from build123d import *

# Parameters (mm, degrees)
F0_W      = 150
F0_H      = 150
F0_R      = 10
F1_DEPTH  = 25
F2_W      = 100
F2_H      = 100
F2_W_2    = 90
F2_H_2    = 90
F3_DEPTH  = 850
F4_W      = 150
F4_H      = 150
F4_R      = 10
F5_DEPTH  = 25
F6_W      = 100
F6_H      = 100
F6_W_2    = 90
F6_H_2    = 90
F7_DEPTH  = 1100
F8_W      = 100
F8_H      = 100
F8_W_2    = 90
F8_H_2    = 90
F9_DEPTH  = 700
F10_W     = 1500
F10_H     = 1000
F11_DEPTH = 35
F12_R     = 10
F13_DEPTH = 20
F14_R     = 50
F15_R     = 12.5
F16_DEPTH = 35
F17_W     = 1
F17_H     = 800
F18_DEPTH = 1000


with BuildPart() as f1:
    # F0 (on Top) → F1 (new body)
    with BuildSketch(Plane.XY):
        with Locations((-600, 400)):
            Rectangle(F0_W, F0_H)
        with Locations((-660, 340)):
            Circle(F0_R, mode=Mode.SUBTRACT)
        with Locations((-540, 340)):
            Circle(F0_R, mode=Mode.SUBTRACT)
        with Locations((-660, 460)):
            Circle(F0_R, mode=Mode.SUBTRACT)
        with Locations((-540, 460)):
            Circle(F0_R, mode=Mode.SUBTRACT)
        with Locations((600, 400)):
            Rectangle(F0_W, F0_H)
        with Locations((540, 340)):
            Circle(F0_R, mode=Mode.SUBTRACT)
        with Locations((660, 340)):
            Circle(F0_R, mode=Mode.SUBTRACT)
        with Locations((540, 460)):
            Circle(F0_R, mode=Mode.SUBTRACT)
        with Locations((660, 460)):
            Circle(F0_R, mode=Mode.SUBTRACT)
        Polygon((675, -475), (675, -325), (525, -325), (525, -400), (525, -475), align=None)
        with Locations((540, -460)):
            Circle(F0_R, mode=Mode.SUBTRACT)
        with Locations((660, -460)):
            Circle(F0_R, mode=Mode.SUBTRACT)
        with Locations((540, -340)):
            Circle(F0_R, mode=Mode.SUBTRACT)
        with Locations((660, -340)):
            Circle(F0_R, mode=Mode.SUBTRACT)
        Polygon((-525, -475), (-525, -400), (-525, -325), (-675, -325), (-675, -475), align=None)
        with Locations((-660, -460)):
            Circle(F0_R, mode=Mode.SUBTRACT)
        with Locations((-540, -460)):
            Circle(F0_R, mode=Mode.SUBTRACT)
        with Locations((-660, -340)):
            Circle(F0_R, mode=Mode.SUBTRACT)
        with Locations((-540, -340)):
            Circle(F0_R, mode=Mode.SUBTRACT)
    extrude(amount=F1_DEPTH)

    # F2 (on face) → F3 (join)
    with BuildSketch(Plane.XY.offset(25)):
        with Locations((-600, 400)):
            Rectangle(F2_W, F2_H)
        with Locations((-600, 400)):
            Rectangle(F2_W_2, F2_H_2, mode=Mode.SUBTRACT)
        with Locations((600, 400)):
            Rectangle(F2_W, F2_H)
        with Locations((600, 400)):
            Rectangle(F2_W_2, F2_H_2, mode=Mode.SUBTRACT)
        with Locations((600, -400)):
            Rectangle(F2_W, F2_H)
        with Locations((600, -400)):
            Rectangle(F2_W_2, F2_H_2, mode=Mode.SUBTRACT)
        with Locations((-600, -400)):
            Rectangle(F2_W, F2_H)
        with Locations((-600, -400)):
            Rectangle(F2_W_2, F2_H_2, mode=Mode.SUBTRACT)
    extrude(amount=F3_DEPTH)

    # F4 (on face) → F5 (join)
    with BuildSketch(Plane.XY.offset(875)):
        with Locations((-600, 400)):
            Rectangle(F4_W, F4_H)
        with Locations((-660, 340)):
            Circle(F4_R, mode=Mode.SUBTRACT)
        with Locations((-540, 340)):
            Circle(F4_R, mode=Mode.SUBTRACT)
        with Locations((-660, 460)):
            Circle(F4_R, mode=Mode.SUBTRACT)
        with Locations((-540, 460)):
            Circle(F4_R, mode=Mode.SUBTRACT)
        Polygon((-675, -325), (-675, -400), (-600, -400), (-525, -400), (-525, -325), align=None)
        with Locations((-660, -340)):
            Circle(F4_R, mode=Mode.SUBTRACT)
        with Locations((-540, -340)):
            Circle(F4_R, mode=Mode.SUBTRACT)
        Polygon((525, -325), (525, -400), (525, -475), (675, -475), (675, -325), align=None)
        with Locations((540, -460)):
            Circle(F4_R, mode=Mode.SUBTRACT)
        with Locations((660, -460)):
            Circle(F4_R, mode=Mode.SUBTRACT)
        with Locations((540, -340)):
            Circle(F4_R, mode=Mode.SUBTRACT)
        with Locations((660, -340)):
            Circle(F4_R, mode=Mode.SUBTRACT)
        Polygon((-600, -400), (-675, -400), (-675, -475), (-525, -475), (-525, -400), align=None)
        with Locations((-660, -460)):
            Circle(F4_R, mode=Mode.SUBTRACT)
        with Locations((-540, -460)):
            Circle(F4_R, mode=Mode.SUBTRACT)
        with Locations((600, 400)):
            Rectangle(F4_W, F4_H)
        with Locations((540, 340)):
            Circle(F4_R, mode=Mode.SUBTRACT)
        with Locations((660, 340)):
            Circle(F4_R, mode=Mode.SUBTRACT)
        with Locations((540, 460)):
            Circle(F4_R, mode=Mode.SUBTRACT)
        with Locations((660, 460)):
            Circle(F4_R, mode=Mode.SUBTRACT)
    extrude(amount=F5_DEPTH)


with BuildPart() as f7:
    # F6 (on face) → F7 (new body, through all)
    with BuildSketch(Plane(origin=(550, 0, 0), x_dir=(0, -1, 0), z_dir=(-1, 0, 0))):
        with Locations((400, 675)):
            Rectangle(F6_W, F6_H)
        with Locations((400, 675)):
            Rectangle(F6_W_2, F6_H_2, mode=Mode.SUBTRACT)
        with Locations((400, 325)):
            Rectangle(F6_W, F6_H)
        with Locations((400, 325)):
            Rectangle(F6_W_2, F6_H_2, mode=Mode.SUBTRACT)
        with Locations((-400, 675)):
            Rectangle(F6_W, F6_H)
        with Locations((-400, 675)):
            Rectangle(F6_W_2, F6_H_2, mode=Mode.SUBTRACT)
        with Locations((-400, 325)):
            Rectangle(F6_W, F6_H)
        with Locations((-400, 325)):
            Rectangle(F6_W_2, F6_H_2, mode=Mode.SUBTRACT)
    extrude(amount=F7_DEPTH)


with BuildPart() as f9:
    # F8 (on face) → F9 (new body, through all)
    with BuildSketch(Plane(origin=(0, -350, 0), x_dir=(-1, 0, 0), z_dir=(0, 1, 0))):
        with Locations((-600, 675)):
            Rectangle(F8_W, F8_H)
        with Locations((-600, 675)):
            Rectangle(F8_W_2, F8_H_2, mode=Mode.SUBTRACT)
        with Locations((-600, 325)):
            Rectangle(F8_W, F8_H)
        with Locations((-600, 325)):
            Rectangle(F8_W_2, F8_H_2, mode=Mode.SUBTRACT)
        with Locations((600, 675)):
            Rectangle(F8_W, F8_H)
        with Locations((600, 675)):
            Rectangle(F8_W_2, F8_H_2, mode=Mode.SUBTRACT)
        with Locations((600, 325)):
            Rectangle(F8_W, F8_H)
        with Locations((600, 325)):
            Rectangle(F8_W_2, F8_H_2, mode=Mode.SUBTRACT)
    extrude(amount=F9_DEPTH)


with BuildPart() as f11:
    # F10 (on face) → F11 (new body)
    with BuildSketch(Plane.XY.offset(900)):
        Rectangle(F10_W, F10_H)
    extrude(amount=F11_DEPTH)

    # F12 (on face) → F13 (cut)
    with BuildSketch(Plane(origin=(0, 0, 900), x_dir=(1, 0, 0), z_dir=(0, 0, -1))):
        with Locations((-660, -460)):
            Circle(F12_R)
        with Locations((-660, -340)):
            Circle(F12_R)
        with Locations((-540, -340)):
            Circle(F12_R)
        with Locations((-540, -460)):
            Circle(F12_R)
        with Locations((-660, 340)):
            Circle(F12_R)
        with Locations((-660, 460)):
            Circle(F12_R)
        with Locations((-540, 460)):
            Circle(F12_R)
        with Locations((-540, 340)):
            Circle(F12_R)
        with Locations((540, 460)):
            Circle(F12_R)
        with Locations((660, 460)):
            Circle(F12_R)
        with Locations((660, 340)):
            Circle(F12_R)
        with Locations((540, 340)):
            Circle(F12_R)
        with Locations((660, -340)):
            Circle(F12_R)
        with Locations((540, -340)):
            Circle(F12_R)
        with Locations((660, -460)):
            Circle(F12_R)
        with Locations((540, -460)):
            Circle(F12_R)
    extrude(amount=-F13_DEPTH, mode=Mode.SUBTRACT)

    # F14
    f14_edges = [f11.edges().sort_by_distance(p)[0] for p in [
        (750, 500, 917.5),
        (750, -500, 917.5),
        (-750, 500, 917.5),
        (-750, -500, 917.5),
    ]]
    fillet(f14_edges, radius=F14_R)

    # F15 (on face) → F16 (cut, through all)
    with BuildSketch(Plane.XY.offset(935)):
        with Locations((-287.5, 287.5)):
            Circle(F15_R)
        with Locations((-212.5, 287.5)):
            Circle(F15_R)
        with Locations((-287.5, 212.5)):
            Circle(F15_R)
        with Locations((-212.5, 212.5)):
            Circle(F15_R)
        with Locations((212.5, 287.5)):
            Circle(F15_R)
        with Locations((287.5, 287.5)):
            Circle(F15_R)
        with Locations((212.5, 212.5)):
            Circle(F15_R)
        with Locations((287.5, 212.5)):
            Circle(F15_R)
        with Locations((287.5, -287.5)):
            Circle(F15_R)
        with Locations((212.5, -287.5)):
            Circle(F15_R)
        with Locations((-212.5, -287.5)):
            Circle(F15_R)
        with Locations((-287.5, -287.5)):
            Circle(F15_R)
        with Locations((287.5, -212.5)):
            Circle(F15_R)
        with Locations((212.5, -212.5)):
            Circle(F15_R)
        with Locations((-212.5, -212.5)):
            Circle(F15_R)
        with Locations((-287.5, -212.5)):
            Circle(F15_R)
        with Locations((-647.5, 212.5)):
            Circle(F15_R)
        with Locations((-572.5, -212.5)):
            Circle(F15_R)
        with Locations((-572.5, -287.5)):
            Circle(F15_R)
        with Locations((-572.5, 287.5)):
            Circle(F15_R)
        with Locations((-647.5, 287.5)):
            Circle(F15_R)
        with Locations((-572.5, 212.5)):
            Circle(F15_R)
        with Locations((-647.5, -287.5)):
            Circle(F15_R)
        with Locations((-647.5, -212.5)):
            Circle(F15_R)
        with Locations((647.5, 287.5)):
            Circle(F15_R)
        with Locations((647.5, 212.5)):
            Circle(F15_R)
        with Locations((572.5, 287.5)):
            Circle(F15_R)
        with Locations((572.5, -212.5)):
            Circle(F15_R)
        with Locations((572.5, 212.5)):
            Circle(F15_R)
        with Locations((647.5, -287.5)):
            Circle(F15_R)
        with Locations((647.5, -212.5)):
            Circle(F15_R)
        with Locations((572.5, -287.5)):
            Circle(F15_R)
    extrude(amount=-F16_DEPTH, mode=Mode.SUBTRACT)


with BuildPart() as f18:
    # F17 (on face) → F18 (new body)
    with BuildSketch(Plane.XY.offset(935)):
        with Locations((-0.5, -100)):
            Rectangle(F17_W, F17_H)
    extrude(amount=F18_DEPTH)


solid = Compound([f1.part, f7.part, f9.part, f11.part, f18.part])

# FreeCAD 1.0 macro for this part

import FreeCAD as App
import Part
import Sketcher
Q = App.Units.Quantity


def edges_at(feature, points):
    """Names of the edges that pass closest to the given points."""
    edges = feature.Shape.Edges
    near = lambda p: min(range(len(edges)), key=lambda i: edges[i].distToShape(Part.Vertex(*p))[0])
    return sorted({f"Edge{near(p) + 1}" for p in points})


def add_polygon(sketch, points):
    """Adds a closed chain of lines whose ends are joined by coincident constraints."""
    first, n = sketch.GeometryCount, len(points)
    for a, b in zip(points, points[1:] + points[:1]):
        sketch.addGeometry(Part.LineSegment(App.Vector(*a, 0), App.Vector(*b, 0)), False)
    for i in range(n):
        sketch.addConstraint(Sketcher.Constraint("Coincident", first + i, 2, first + (i + 1) % n, 1))

doc = App.newDocument("Part")
body = doc.addObject("PartDesign::Body", "Body")
body.AllowCompound = True

# Sketch on XY plane
sketch1 = body.newObject("Sketcher::SketchObject", "Sketch")
sketch1.AttachmentSupport = (doc.getObject("XY_Plane"), [""])
sketch1.MapMode = "FlatFace"
add_polygon(sketch1, [(-675, 475), (-675, 325), (-525, 325), (-525, 475)])  # lines 0-3
sketch1.addGeometry(Part.Circle(App.Vector(-660, 340, 0), App.Vector(0, 0, 1), 10), False)  # 4
sketch1.addGeometry(Part.Circle(App.Vector(-540, 340, 0), App.Vector(0, 0, 1), 10), False)  # 5
sketch1.addGeometry(Part.Circle(App.Vector(-660, 460, 0), App.Vector(0, 0, 1), 10), False)  # 6
sketch1.addGeometry(Part.Circle(App.Vector(-540, 460, 0), App.Vector(0, 0, 1), 10), False)  # 7
add_polygon(sketch1, [(525, 475), (525, 325), (675, 325), (675, 475)])  # lines 8-11
sketch1.addGeometry(Part.Circle(App.Vector(540, 340, 0), App.Vector(0, 0, 1), 10), False)  # 12
sketch1.addGeometry(Part.Circle(App.Vector(660, 340, 0), App.Vector(0, 0, 1), 10), False)  # 13
sketch1.addGeometry(Part.Circle(App.Vector(540, 460, 0), App.Vector(0, 0, 1), 10), False)  # 14
sketch1.addGeometry(Part.Circle(App.Vector(660, 460, 0), App.Vector(0, 0, 1), 10), False)  # 15
add_polygon(sketch1, [(675, -475), (675, -325), (525, -325), (525, -475)])  # lines 16-19
sketch1.addGeometry(Part.Circle(App.Vector(540, -460, 0), App.Vector(0, 0, 1), 10), False)  # 20
sketch1.addGeometry(Part.Circle(App.Vector(660, -460, 0), App.Vector(0, 0, 1), 10), False)  # 21
sketch1.addGeometry(Part.Circle(App.Vector(540, -340, 0), App.Vector(0, 0, 1), 10), False)  # 22
sketch1.addGeometry(Part.Circle(App.Vector(660, -340, 0), App.Vector(0, 0, 1), 10), False)  # 23
add_polygon(sketch1, [(-525, -475), (-525, -325), (-675, -325), (-675, -475)])  # lines 24-27
sketch1.addGeometry(Part.Circle(App.Vector(-660, -460, 0), App.Vector(0, 0, 1), 10), False)  # 28
sketch1.addGeometry(Part.Circle(App.Vector(-540, -460, 0), App.Vector(0, 0, 1), 10), False)  # 29
sketch1.addGeometry(Part.Circle(App.Vector(-660, -340, 0), App.Vector(0, 0, 1), 10), False)  # 30
sketch1.addGeometry(Part.Circle(App.Vector(-540, -340, 0), App.Vector(0, 0, 1), 10), False)  # 31
sketch1.addConstraint(Sketcher.Constraint("Vertical", 0))
sketch1.addConstraint(Sketcher.Constraint("Horizontal", 1))
sketch1.addConstraint(Sketcher.Constraint("Vertical", 2))
sketch1.addConstraint(Sketcher.Constraint("Horizontal", 3))
sketch1.addConstraint(Sketcher.Constraint("Vertical", 8))
sketch1.addConstraint(Sketcher.Constraint("Horizontal", 9))
sketch1.addConstraint(Sketcher.Constraint("Vertical", 10))
sketch1.addConstraint(Sketcher.Constraint("Horizontal", 11))
sketch1.addConstraint(Sketcher.Constraint("Vertical", 16))
sketch1.addConstraint(Sketcher.Constraint("Horizontal", 17))
sketch1.addConstraint(Sketcher.Constraint("Vertical", 18))
sketch1.addConstraint(Sketcher.Constraint("Horizontal", 19))
sketch1.addConstraint(Sketcher.Constraint("Vertical", 24))
sketch1.addConstraint(Sketcher.Constraint("Horizontal", 25))
sketch1.addConstraint(Sketcher.Constraint("Vertical", 26))
sketch1.addConstraint(Sketcher.Constraint("Horizontal", 27))
sketch1.addConstraint(Sketcher.Constraint("Equal", 4, 5))
sketch1.addConstraint(Sketcher.Constraint("Equal", 5, 6))
sketch1.addConstraint(Sketcher.Constraint("Equal", 6, 7))
sketch1.addConstraint(Sketcher.Constraint("Equal", 7, 12))
sketch1.addConstraint(Sketcher.Constraint("Equal", 12, 13))
sketch1.addConstraint(Sketcher.Constraint("Equal", 13, 14))
sketch1.addConstraint(Sketcher.Constraint("Equal", 14, 15))
sketch1.addConstraint(Sketcher.Constraint("Equal", 15, 20))
sketch1.addConstraint(Sketcher.Constraint("Equal", 20, 21))
sketch1.addConstraint(Sketcher.Constraint("Equal", 21, 22))
sketch1.addConstraint(Sketcher.Constraint("Equal", 22, 23))
sketch1.addConstraint(Sketcher.Constraint("Equal", 23, 28))
sketch1.addConstraint(Sketcher.Constraint("Equal", 28, 29))
sketch1.addConstraint(Sketcher.Constraint("Equal", 29, 30))
sketch1.addConstraint(Sketcher.Constraint("Equal", 30, 31))
sketch1.addConstraint(Sketcher.Constraint("Symmetric", 7, 3, 20, 3, -1, 1))
sketch1.addConstraint(Sketcher.Constraint("Symmetric", 6, 3, 21, 3, -1, 1))
sketch1.addConstraint(Sketcher.Constraint("Symmetric", 5, 3, 22, 3, -1, 1))
sketch1.addConstraint(Sketcher.Constraint("Symmetric", 4, 3, 23, 3, -1, 1))
sketch1.addConstraint(Sketcher.Constraint("Symmetric", 15, 3, 28, 3, -1, 1))
sketch1.addConstraint(Sketcher.Constraint("Symmetric", 14, 3, 29, 3, -1, 1))
sketch1.addConstraint(Sketcher.Constraint("Symmetric", 13, 3, 30, 3, -1, 1))
sketch1.addConstraint(Sketcher.Constraint("Symmetric", 12, 3, 31, 3, -1, 1))
sketch1.addConstraint(Sketcher.Constraint("Symmetric", 0, 2, 16, 2, -1, 1))
sketch1.addConstraint(Sketcher.Constraint("Symmetric", 2, 2, 18, 2, -1, 1))
sketch1.addConstraint(Sketcher.Constraint("Symmetric", 8, 2, 24, 2, -1, 1))
sketch1.addConstraint(Sketcher.Constraint("Symmetric", 10, 2, 26, 2, -1, 1))
sketch1.addConstraint(Sketcher.Constraint("Symmetric", 5, 3, 12, 3, -2))
sketch1.addConstraint(Sketcher.Constraint("Symmetric", 4, 3, 13, 3, -2))
sketch1.addConstraint(Sketcher.Constraint("Symmetric", 7, 3, 14, 3, -2))
sketch1.addConstraint(Sketcher.Constraint("Symmetric", 6, 3, 15, 3, -2))
sketch1.addConstraint(Sketcher.Constraint("Symmetric", 1, 2, 8, 2, -2))
sketch1.addConstraint(Sketcher.Constraint("Symmetric", 3, 2, 10, 2, -2))
sketch1.addConstraint(Sketcher.Constraint("Horizontal", 4, 3, 5, 3))
sketch1.addConstraint(Sketcher.Constraint("Horizontal", 6, 3, 7, 3))
sketch1.addConstraint(Sketcher.Constraint("Vertical", 4, 3, 6, 3))
sketch1.addConstraint(Sketcher.Constraint("Vertical", 5, 3, 7, 3))
sketch1.addConstraint(Sketcher.Constraint("Equal", 27, 0))
sketch1.addConstraint(Sketcher.Constraint("Diameter", 4, Q("20 mm")))
sketch1.addConstraint(Sketcher.Constraint("DistanceX", 1, 1, 1, 2, Q("150 mm")))
sketch1.addConstraint(Sketcher.Constraint("DistanceX", 4, 3, -1, 1, Q("660 mm")))
sketch1.addConstraint(Sketcher.Constraint("DistanceY", -1, 1, 4, 3, Q("340 mm")))
sketch1.addConstraint(Sketcher.Constraint("DistanceX", 5, 3, -1, 1, Q("540 mm")))
sketch1.addConstraint(Sketcher.Constraint("DistanceY", -1, 1, 6, 3, Q("460 mm")))
sketch1.addConstraint(Sketcher.Constraint("DistanceX", 0, 2, -1, 1, Q("675 mm")))
sketch1.addConstraint(Sketcher.Constraint("DistanceY", -1, 1, 0, 2, Q("325 mm")))
pad1 = body.newObject("PartDesign::Pad", "Pad")
pad1.Profile = sketch1
pad1.Length = 25

# Sketch on XY plane
sketch2 = body.newObject("Sketcher::SketchObject", "Sketch001")
sketch2.AttachmentSupport = (doc.getObject("XY_Plane"), [""])
sketch2.MapMode = "FlatFace"
sketch2.AttachmentOffset = App.Placement(App.Vector(0, 0, 25), App.Rotation())
add_polygon(sketch2, [(-650, 450), (-650, 350), (-550, 350), (-550, 450)])  # lines 0-3
add_polygon(sketch2, [(-555, 355), (-645, 355), (-645, 445), (-555, 445)])  # lines 4-7
add_polygon(sketch2, [(550, 450), (550, 350), (650, 350), (650, 450)])  # lines 8-11
add_polygon(sketch2, [(645, 355), (555, 355), (555, 445), (645, 445)])  # lines 12-15
add_polygon(sketch2, [(550, -350), (550, -450), (650, -450), (650, -350)])  # lines 16-19
add_polygon(sketch2, [(645, -445), (555, -445), (555, -355), (645, -355)])  # lines 20-23
add_polygon(sketch2, [(-650, -350), (-650, -450), (-550, -450), (-550, -350)])  # lines 24-27
add_polygon(sketch2, [(-555, -445), (-645, -445), (-645, -355), (-555, -355)])  # lines 28-31
sketch2.addConstraint(Sketcher.Constraint("Vertical", 0))
sketch2.addConstraint(Sketcher.Constraint("Horizontal", 1))
sketch2.addConstraint(Sketcher.Constraint("Vertical", 2))
sketch2.addConstraint(Sketcher.Constraint("Horizontal", 3))
sketch2.addConstraint(Sketcher.Constraint("Horizontal", 4))
sketch2.addConstraint(Sketcher.Constraint("Vertical", 5))
sketch2.addConstraint(Sketcher.Constraint("Horizontal", 6))
sketch2.addConstraint(Sketcher.Constraint("Vertical", 7))
sketch2.addConstraint(Sketcher.Constraint("Vertical", 8))
sketch2.addConstraint(Sketcher.Constraint("Horizontal", 9))
sketch2.addConstraint(Sketcher.Constraint("Vertical", 10))
sketch2.addConstraint(Sketcher.Constraint("Horizontal", 11))
sketch2.addConstraint(Sketcher.Constraint("Horizontal", 12))
sketch2.addConstraint(Sketcher.Constraint("Vertical", 13))
sketch2.addConstraint(Sketcher.Constraint("Horizontal", 14))
sketch2.addConstraint(Sketcher.Constraint("Vertical", 15))
sketch2.addConstraint(Sketcher.Constraint("Vertical", 16))
sketch2.addConstraint(Sketcher.Constraint("Horizontal", 17))
sketch2.addConstraint(Sketcher.Constraint("Vertical", 18))
sketch2.addConstraint(Sketcher.Constraint("Horizontal", 19))
sketch2.addConstraint(Sketcher.Constraint("Horizontal", 20))
sketch2.addConstraint(Sketcher.Constraint("Vertical", 21))
sketch2.addConstraint(Sketcher.Constraint("Horizontal", 22))
sketch2.addConstraint(Sketcher.Constraint("Vertical", 23))
sketch2.addConstraint(Sketcher.Constraint("Vertical", 24))
sketch2.addConstraint(Sketcher.Constraint("Horizontal", 25))
sketch2.addConstraint(Sketcher.Constraint("Vertical", 26))
sketch2.addConstraint(Sketcher.Constraint("Horizontal", 27))
sketch2.addConstraint(Sketcher.Constraint("Horizontal", 28))
sketch2.addConstraint(Sketcher.Constraint("Vertical", 29))
sketch2.addConstraint(Sketcher.Constraint("Horizontal", 30))
sketch2.addConstraint(Sketcher.Constraint("Vertical", 31))
sketch2.addConstraint(Sketcher.Constraint("Symmetric", 2, 2, 16, 2, -1, 1))
sketch2.addConstraint(Sketcher.Constraint("Symmetric", 0, 2, 18, 2, -1, 1))
sketch2.addConstraint(Sketcher.Constraint("Symmetric", 6, 2, 20, 2, -1, 1))
sketch2.addConstraint(Sketcher.Constraint("Symmetric", 4, 2, 22, 2, -1, 1))
sketch2.addConstraint(Sketcher.Constraint("Symmetric", 10, 2, 24, 2, -1, 1))
sketch2.addConstraint(Sketcher.Constraint("Symmetric", 8, 2, 26, 2, -1, 1))
sketch2.addConstraint(Sketcher.Constraint("Symmetric", 14, 2, 28, 2, -1, 1))
sketch2.addConstraint(Sketcher.Constraint("Symmetric", 12, 2, 30, 2, -1, 1))
sketch2.addConstraint(Sketcher.Constraint("Symmetric", 1, 2, 8, 2, -2))
sketch2.addConstraint(Sketcher.Constraint("Symmetric", 3, 2, 10, 2, -2))
sketch2.addConstraint(Sketcher.Constraint("Symmetric", 7, 2, 12, 2, -2))
sketch2.addConstraint(Sketcher.Constraint("Symmetric", 5, 2, 14, 2, -2))
sketch2.addConstraint(Sketcher.Constraint("Equal", 27, 0))
sketch2.addConstraint(Sketcher.Constraint("Equal", 30, 5))
sketch2.addConstraint(Sketcher.Constraint("DistanceX", 1, 1, 1, 2, Q("100 mm")))
sketch2.addConstraint(Sketcher.Constraint("DistanceX", 4, 2, 4, 1, Q("90 mm")))
sketch2.addConstraint(Sketcher.Constraint("DistanceX", 0, 2, -1, 1, Q("650 mm")))
sketch2.addConstraint(Sketcher.Constraint("DistanceY", -1, 1, 0, 2, Q("350 mm")))
sketch2.addConstraint(Sketcher.Constraint("DistanceX", 4, 2, -1, 1, Q("645 mm")))
sketch2.addConstraint(Sketcher.Constraint("DistanceY", -1, 1, 4, 2, Q("355 mm")))
pad2 = body.newObject("PartDesign::Pad", "Pad001")
pad2.Profile = sketch2
pad2.Length = 850

# Sketch on XY plane
sketch3 = body.newObject("Sketcher::SketchObject", "Sketch002")
sketch3.AttachmentSupport = (doc.getObject("XY_Plane"), [""])
sketch3.MapMode = "FlatFace"
sketch3.AttachmentOffset = App.Placement(App.Vector(0, 0, 875), App.Rotation())
add_polygon(sketch3, [(-675, 475), (-675, 325), (-525, 325), (-525, 475)])  # lines 0-3
sketch3.addGeometry(Part.Circle(App.Vector(-660, 340, 0), App.Vector(0, 0, 1), 10), False)  # 4
sketch3.addGeometry(Part.Circle(App.Vector(-540, 340, 0), App.Vector(0, 0, 1), 10), False)  # 5
sketch3.addGeometry(Part.Circle(App.Vector(-660, 460, 0), App.Vector(0, 0, 1), 10), False)  # 6
sketch3.addGeometry(Part.Circle(App.Vector(-540, 460, 0), App.Vector(0, 0, 1), 10), False)  # 7
add_polygon(sketch3, [(-675, -325), (-675, -475), (-525, -475), (-525, -325)])  # lines 8-11
sketch3.addGeometry(Part.Circle(App.Vector(-660, -460, 0), App.Vector(0, 0, 1), 10), False)  # 12
sketch3.addGeometry(Part.Circle(App.Vector(-540, -460, 0), App.Vector(0, 0, 1), 10), False)  # 13
sketch3.addGeometry(Part.Circle(App.Vector(-660, -340, 0), App.Vector(0, 0, 1), 10), False)  # 14
sketch3.addGeometry(Part.Circle(App.Vector(-540, -340, 0), App.Vector(0, 0, 1), 10), False)  # 15
add_polygon(sketch3, [(525, -325), (525, -475), (675, -475), (675, -325)])  # lines 16-19
sketch3.addGeometry(Part.Circle(App.Vector(540, -460, 0), App.Vector(0, 0, 1), 10), False)  # 20
sketch3.addGeometry(Part.Circle(App.Vector(660, -460, 0), App.Vector(0, 0, 1), 10), False)  # 21
sketch3.addGeometry(Part.Circle(App.Vector(540, -340, 0), App.Vector(0, 0, 1), 10), False)  # 22
sketch3.addGeometry(Part.Circle(App.Vector(660, -340, 0), App.Vector(0, 0, 1), 10), False)  # 23
add_polygon(sketch3, [(525, 475), (525, 325), (675, 325), (675, 475)])  # lines 24-27
sketch3.addGeometry(Part.Circle(App.Vector(540, 340, 0), App.Vector(0, 0, 1), 10), False)  # 28
sketch3.addGeometry(Part.Circle(App.Vector(660, 340, 0), App.Vector(0, 0, 1), 10), False)  # 29
sketch3.addGeometry(Part.Circle(App.Vector(540, 460, 0), App.Vector(0, 0, 1), 10), False)  # 30
sketch3.addGeometry(Part.Circle(App.Vector(660, 460, 0), App.Vector(0, 0, 1), 10), False)  # 31
sketch3.addConstraint(Sketcher.Constraint("Vertical", 0))
sketch3.addConstraint(Sketcher.Constraint("Horizontal", 1))
sketch3.addConstraint(Sketcher.Constraint("Vertical", 2))
sketch3.addConstraint(Sketcher.Constraint("Horizontal", 3))
sketch3.addConstraint(Sketcher.Constraint("Vertical", 8))
sketch3.addConstraint(Sketcher.Constraint("Horizontal", 9))
sketch3.addConstraint(Sketcher.Constraint("Vertical", 10))
sketch3.addConstraint(Sketcher.Constraint("Horizontal", 11))
sketch3.addConstraint(Sketcher.Constraint("Vertical", 16))
sketch3.addConstraint(Sketcher.Constraint("Horizontal", 17))
sketch3.addConstraint(Sketcher.Constraint("Vertical", 18))
sketch3.addConstraint(Sketcher.Constraint("Horizontal", 19))
sketch3.addConstraint(Sketcher.Constraint("Vertical", 24))
sketch3.addConstraint(Sketcher.Constraint("Horizontal", 25))
sketch3.addConstraint(Sketcher.Constraint("Vertical", 26))
sketch3.addConstraint(Sketcher.Constraint("Horizontal", 27))
sketch3.addConstraint(Sketcher.Constraint("Equal", 4, 5))
sketch3.addConstraint(Sketcher.Constraint("Equal", 5, 6))
sketch3.addConstraint(Sketcher.Constraint("Equal", 6, 7))
sketch3.addConstraint(Sketcher.Constraint("Equal", 7, 12))
sketch3.addConstraint(Sketcher.Constraint("Equal", 12, 13))
sketch3.addConstraint(Sketcher.Constraint("Equal", 13, 14))
sketch3.addConstraint(Sketcher.Constraint("Equal", 14, 15))
sketch3.addConstraint(Sketcher.Constraint("Equal", 15, 20))
sketch3.addConstraint(Sketcher.Constraint("Equal", 20, 21))
sketch3.addConstraint(Sketcher.Constraint("Equal", 21, 22))
sketch3.addConstraint(Sketcher.Constraint("Equal", 22, 23))
sketch3.addConstraint(Sketcher.Constraint("Equal", 23, 28))
sketch3.addConstraint(Sketcher.Constraint("Equal", 28, 29))
sketch3.addConstraint(Sketcher.Constraint("Equal", 29, 30))
sketch3.addConstraint(Sketcher.Constraint("Equal", 30, 31))
sketch3.addConstraint(Sketcher.Constraint("Symmetric", 7, 3, 20, 3, -1, 1))
sketch3.addConstraint(Sketcher.Constraint("Symmetric", 6, 3, 21, 3, -1, 1))
sketch3.addConstraint(Sketcher.Constraint("Symmetric", 5, 3, 22, 3, -1, 1))
sketch3.addConstraint(Sketcher.Constraint("Symmetric", 4, 3, 23, 3, -1, 1))
sketch3.addConstraint(Sketcher.Constraint("Symmetric", 15, 3, 28, 3, -1, 1))
sketch3.addConstraint(Sketcher.Constraint("Symmetric", 14, 3, 29, 3, -1, 1))
sketch3.addConstraint(Sketcher.Constraint("Symmetric", 13, 3, 30, 3, -1, 1))
sketch3.addConstraint(Sketcher.Constraint("Symmetric", 12, 3, 31, 3, -1, 1))
sketch3.addConstraint(Sketcher.Constraint("Symmetric", 2, 2, 16, 2, -1, 1))
sketch3.addConstraint(Sketcher.Constraint("Symmetric", 0, 2, 18, 2, -1, 1))
sketch3.addConstraint(Sketcher.Constraint("Symmetric", 10, 2, 24, 2, -1, 1))
sketch3.addConstraint(Sketcher.Constraint("Symmetric", 8, 2, 26, 2, -1, 1))
sketch3.addConstraint(Sketcher.Constraint("Symmetric", 13, 3, 20, 3, -2))
sketch3.addConstraint(Sketcher.Constraint("Symmetric", 12, 3, 21, 3, -2))
sketch3.addConstraint(Sketcher.Constraint("Symmetric", 15, 3, 22, 3, -2))
sketch3.addConstraint(Sketcher.Constraint("Symmetric", 14, 3, 23, 3, -2))
sketch3.addConstraint(Sketcher.Constraint("Symmetric", 9, 2, 16, 2, -2))
sketch3.addConstraint(Sketcher.Constraint("Symmetric", 11, 2, 18, 2, -2))
sketch3.addConstraint(Sketcher.Constraint("Horizontal", 4, 3, 5, 3))
sketch3.addConstraint(Sketcher.Constraint("Horizontal", 6, 3, 7, 3))
sketch3.addConstraint(Sketcher.Constraint("Vertical", 4, 3, 6, 3))
sketch3.addConstraint(Sketcher.Constraint("Vertical", 5, 3, 7, 3))
sketch3.addConstraint(Sketcher.Constraint("Equal", 27, 0))
sketch3.addConstraint(Sketcher.Constraint("Diameter", 4, Q("20 mm")))
sketch3.addConstraint(Sketcher.Constraint("DistanceX", 1, 1, 1, 2, Q("150 mm")))
sketch3.addConstraint(Sketcher.Constraint("DistanceX", 4, 3, -1, 1, Q("660 mm")))
sketch3.addConstraint(Sketcher.Constraint("DistanceY", -1, 1, 4, 3, Q("340 mm")))
sketch3.addConstraint(Sketcher.Constraint("DistanceX", 5, 3, -1, 1, Q("540 mm")))
sketch3.addConstraint(Sketcher.Constraint("DistanceY", -1, 1, 6, 3, Q("460 mm")))
sketch3.addConstraint(Sketcher.Constraint("DistanceX", 0, 2, -1, 1, Q("675 mm")))
sketch3.addConstraint(Sketcher.Constraint("DistanceY", -1, 1, 0, 2, Q("325 mm")))
pad3 = body.newObject("PartDesign::Pad", "Pad002")
pad3.Profile = sketch3
pad3.Length = 25
body2 = doc.addObject("PartDesign::Body", "Body001")
body2.AllowCompound = True

# Sketch on YZ plane
sketch4 = body2.newObject("Sketcher::SketchObject", "Sketch003")
sketch4.AttachmentSupport = (doc.getObject("YZ_Plane001"), [""])
sketch4.MapMode = "FlatFace"
sketch4.AttachmentOffset = App.Placement(App.Vector(0, 0, 550), App.Rotation())
add_polygon(sketch4, [(-350, 725), (-350, 625), (-450, 625), (-450, 725)])  # lines 0-3
add_polygon(sketch4, [(-445, 630), (-355, 630), (-355, 720), (-445, 720)])  # lines 4-7
add_polygon(sketch4, [(-350, 375), (-350, 275), (-450, 275), (-450, 375)])  # lines 8-11
add_polygon(sketch4, [(-445, 280), (-355, 280), (-355, 370), (-445, 370)])  # lines 12-15
add_polygon(sketch4, [(450, 725), (450, 625), (350, 625), (350, 725)])  # lines 16-19
add_polygon(sketch4, [(355, 630), (445, 630), (445, 720), (355, 720)])  # lines 20-23
add_polygon(sketch4, [(450, 375), (450, 275), (350, 275), (350, 375)])  # lines 24-27
add_polygon(sketch4, [(355, 280), (445, 280), (445, 370), (355, 370)])  # lines 28-31
sketch4.addConstraint(Sketcher.Constraint("Vertical", 0))
sketch4.addConstraint(Sketcher.Constraint("Horizontal", 1))
sketch4.addConstraint(Sketcher.Constraint("Vertical", 2))
sketch4.addConstraint(Sketcher.Constraint("Horizontal", 3))
sketch4.addConstraint(Sketcher.Constraint("Horizontal", 4))
sketch4.addConstraint(Sketcher.Constraint("Vertical", 5))
sketch4.addConstraint(Sketcher.Constraint("Horizontal", 6))
sketch4.addConstraint(Sketcher.Constraint("Vertical", 7))
sketch4.addConstraint(Sketcher.Constraint("Vertical", 8))
sketch4.addConstraint(Sketcher.Constraint("Horizontal", 9))
sketch4.addConstraint(Sketcher.Constraint("Vertical", 10))
sketch4.addConstraint(Sketcher.Constraint("Horizontal", 11))
sketch4.addConstraint(Sketcher.Constraint("Horizontal", 12))
sketch4.addConstraint(Sketcher.Constraint("Vertical", 13))
sketch4.addConstraint(Sketcher.Constraint("Horizontal", 14))
sketch4.addConstraint(Sketcher.Constraint("Vertical", 15))
sketch4.addConstraint(Sketcher.Constraint("Vertical", 16))
sketch4.addConstraint(Sketcher.Constraint("Horizontal", 17))
sketch4.addConstraint(Sketcher.Constraint("Vertical", 18))
sketch4.addConstraint(Sketcher.Constraint("Horizontal", 19))
sketch4.addConstraint(Sketcher.Constraint("Horizontal", 20))
sketch4.addConstraint(Sketcher.Constraint("Vertical", 21))
sketch4.addConstraint(Sketcher.Constraint("Horizontal", 22))
sketch4.addConstraint(Sketcher.Constraint("Vertical", 23))
sketch4.addConstraint(Sketcher.Constraint("Vertical", 24))
sketch4.addConstraint(Sketcher.Constraint("Horizontal", 25))
sketch4.addConstraint(Sketcher.Constraint("Vertical", 26))
sketch4.addConstraint(Sketcher.Constraint("Horizontal", 27))
sketch4.addConstraint(Sketcher.Constraint("Horizontal", 28))
sketch4.addConstraint(Sketcher.Constraint("Vertical", 29))
sketch4.addConstraint(Sketcher.Constraint("Horizontal", 30))
sketch4.addConstraint(Sketcher.Constraint("Vertical", 31))
sketch4.addConstraint(Sketcher.Constraint("Symmetric", 1, 2, 16, 2, -2))
sketch4.addConstraint(Sketcher.Constraint("Symmetric", 3, 2, 18, 2, -2))
sketch4.addConstraint(Sketcher.Constraint("Symmetric", 7, 2, 20, 2, -2))
sketch4.addConstraint(Sketcher.Constraint("Symmetric", 5, 2, 22, 2, -2))
sketch4.addConstraint(Sketcher.Constraint("Symmetric", 9, 2, 24, 2, -2))
sketch4.addConstraint(Sketcher.Constraint("Symmetric", 11, 2, 26, 2, -2))
sketch4.addConstraint(Sketcher.Constraint("Symmetric", 15, 2, 28, 2, -2))
sketch4.addConstraint(Sketcher.Constraint("Symmetric", 13, 2, 30, 2, -2))
sketch4.addConstraint(Sketcher.Constraint("Vertical", 3, 2, 8, 2))
sketch4.addConstraint(Sketcher.Constraint("Vertical", 2, 2, 9, 2))
sketch4.addConstraint(Sketcher.Constraint("Vertical", 5, 2, 12, 2))
sketch4.addConstraint(Sketcher.Constraint("Vertical", 7, 2, 14, 2))
sketch4.addConstraint(Sketcher.Constraint("Equal", 27, 0))
sketch4.addConstraint(Sketcher.Constraint("Equal", 30, 5))
sketch4.addConstraint(Sketcher.Constraint("Equal", 2, 8))
sketch4.addConstraint(Sketcher.Constraint("Equal", 7, 13))
sketch4.addConstraint(Sketcher.Constraint("DistanceX", 1, 2, 1, 1, Q("100 mm")))
sketch4.addConstraint(Sketcher.Constraint("DistanceX", 4, 1, 4, 2, Q("90 mm")))
sketch4.addConstraint(Sketcher.Constraint("DistanceX", 0, 2, -1, 1, Q("350 mm")))
sketch4.addConstraint(Sketcher.Constraint("DistanceY", -1, 1, 0, 2, Q("625 mm")))
sketch4.addConstraint(Sketcher.Constraint("DistanceX", 4, 2, -1, 1, Q("355 mm")))
sketch4.addConstraint(Sketcher.Constraint("DistanceY", -1, 1, 4, 2, Q("630 mm")))
sketch4.addConstraint(Sketcher.Constraint("DistanceY", -1, 1, 8, 2, Q("275 mm")))
sketch4.addConstraint(Sketcher.Constraint("DistanceY", -1, 1, 12, 2, Q("280 mm")))
pad4 = body2.newObject("PartDesign::Pad", "Pad003")
pad4.Profile = sketch4
pad4.Length = 1100
pad4.Reversed = True
body3 = doc.addObject("PartDesign::Body", "Body002")
body3.AllowCompound = True

# Sketch on XZ plane
sketch5 = body3.newObject("Sketcher::SketchObject", "Sketch004")
sketch5.AttachmentSupport = (doc.getObject("XZ_Plane002"), [""])
sketch5.MapMode = "FlatFace"
sketch5.AttachmentOffset = App.Placement(App.Vector(0, 0, 350), App.Rotation())
add_polygon(sketch5, [(650, 725), (650, 625), (550, 625), (550, 725)])  # lines 0-3
add_polygon(sketch5, [(555, 630), (645, 630), (645, 720), (555, 720)])  # lines 4-7
add_polygon(sketch5, [(650, 375), (650, 275), (550, 275), (550, 375)])  # lines 8-11
add_polygon(sketch5, [(555, 280), (645, 280), (645, 370), (555, 370)])  # lines 12-15
add_polygon(sketch5, [(-550, 725), (-550, 625), (-650, 625), (-650, 725)])  # lines 16-19
add_polygon(sketch5, [(-645, 630), (-555, 630), (-555, 720), (-645, 720)])  # lines 20-23
add_polygon(sketch5, [(-550, 375), (-550, 275), (-650, 275), (-650, 375)])  # lines 24-27
add_polygon(sketch5, [(-645, 280), (-555, 280), (-555, 370), (-645, 370)])  # lines 28-31
sketch5.addConstraint(Sketcher.Constraint("Vertical", 0))
sketch5.addConstraint(Sketcher.Constraint("Horizontal", 1))
sketch5.addConstraint(Sketcher.Constraint("Vertical", 2))
sketch5.addConstraint(Sketcher.Constraint("Horizontal", 3))
sketch5.addConstraint(Sketcher.Constraint("Horizontal", 4))
sketch5.addConstraint(Sketcher.Constraint("Vertical", 5))
sketch5.addConstraint(Sketcher.Constraint("Horizontal", 6))
sketch5.addConstraint(Sketcher.Constraint("Vertical", 7))
sketch5.addConstraint(Sketcher.Constraint("Vertical", 8))
sketch5.addConstraint(Sketcher.Constraint("Horizontal", 9))
sketch5.addConstraint(Sketcher.Constraint("Vertical", 10))
sketch5.addConstraint(Sketcher.Constraint("Horizontal", 11))
sketch5.addConstraint(Sketcher.Constraint("Horizontal", 12))
sketch5.addConstraint(Sketcher.Constraint("Vertical", 13))
sketch5.addConstraint(Sketcher.Constraint("Horizontal", 14))
sketch5.addConstraint(Sketcher.Constraint("Vertical", 15))
sketch5.addConstraint(Sketcher.Constraint("Vertical", 16))
sketch5.addConstraint(Sketcher.Constraint("Horizontal", 17))
sketch5.addConstraint(Sketcher.Constraint("Vertical", 18))
sketch5.addConstraint(Sketcher.Constraint("Horizontal", 19))
sketch5.addConstraint(Sketcher.Constraint("Horizontal", 20))
sketch5.addConstraint(Sketcher.Constraint("Vertical", 21))
sketch5.addConstraint(Sketcher.Constraint("Horizontal", 22))
sketch5.addConstraint(Sketcher.Constraint("Vertical", 23))
sketch5.addConstraint(Sketcher.Constraint("Vertical", 24))
sketch5.addConstraint(Sketcher.Constraint("Horizontal", 25))
sketch5.addConstraint(Sketcher.Constraint("Vertical", 26))
sketch5.addConstraint(Sketcher.Constraint("Horizontal", 27))
sketch5.addConstraint(Sketcher.Constraint("Horizontal", 28))
sketch5.addConstraint(Sketcher.Constraint("Vertical", 29))
sketch5.addConstraint(Sketcher.Constraint("Horizontal", 30))
sketch5.addConstraint(Sketcher.Constraint("Vertical", 31))
sketch5.addConstraint(Sketcher.Constraint("Symmetric", 1, 2, 16, 2, -2))
sketch5.addConstraint(Sketcher.Constraint("Symmetric", 3, 2, 18, 2, -2))
sketch5.addConstraint(Sketcher.Constraint("Symmetric", 7, 2, 20, 2, -2))
sketch5.addConstraint(Sketcher.Constraint("Symmetric", 5, 2, 22, 2, -2))
sketch5.addConstraint(Sketcher.Constraint("Symmetric", 9, 2, 24, 2, -2))
sketch5.addConstraint(Sketcher.Constraint("Symmetric", 11, 2, 26, 2, -2))
sketch5.addConstraint(Sketcher.Constraint("Symmetric", 15, 2, 28, 2, -2))
sketch5.addConstraint(Sketcher.Constraint("Symmetric", 13, 2, 30, 2, -2))
sketch5.addConstraint(Sketcher.Constraint("Vertical", 3, 2, 8, 2))
sketch5.addConstraint(Sketcher.Constraint("Vertical", 2, 2, 9, 2))
sketch5.addConstraint(Sketcher.Constraint("Vertical", 5, 2, 12, 2))
sketch5.addConstraint(Sketcher.Constraint("Vertical", 7, 2, 14, 2))
sketch5.addConstraint(Sketcher.Constraint("Equal", 27, 0))
sketch5.addConstraint(Sketcher.Constraint("Equal", 30, 5))
sketch5.addConstraint(Sketcher.Constraint("Equal", 2, 8))
sketch5.addConstraint(Sketcher.Constraint("Equal", 7, 13))
sketch5.addConstraint(Sketcher.Constraint("DistanceX", 1, 2, 1, 1, Q("100 mm")))
sketch5.addConstraint(Sketcher.Constraint("DistanceX", 4, 1, 4, 2, Q("90 mm")))
sketch5.addConstraint(Sketcher.Constraint("DistanceX", -1, 1, 0, 2, Q("650 mm")))
sketch5.addConstraint(Sketcher.Constraint("DistanceY", -1, 1, 0, 2, Q("625 mm")))
sketch5.addConstraint(Sketcher.Constraint("DistanceX", -1, 1, 4, 2, Q("645 mm")))
sketch5.addConstraint(Sketcher.Constraint("DistanceY", -1, 1, 4, 2, Q("630 mm")))
sketch5.addConstraint(Sketcher.Constraint("DistanceY", -1, 1, 8, 2, Q("275 mm")))
sketch5.addConstraint(Sketcher.Constraint("DistanceY", -1, 1, 12, 2, Q("280 mm")))
pad5 = body3.newObject("PartDesign::Pad", "Pad004")
pad5.Profile = sketch5
pad5.Length = 700
pad5.Reversed = True
body4 = doc.addObject("PartDesign::Body", "Body003")

# Sketch on XY plane
sketch6 = body4.newObject("Sketcher::SketchObject", "Sketch005")
sketch6.AttachmentSupport = (doc.getObject("XY_Plane003"), [""])
sketch6.MapMode = "FlatFace"
sketch6.AttachmentOffset = App.Placement(App.Vector(0, 0, 900), App.Rotation())
add_polygon(sketch6, [(-750, 500), (-750, -500), (750, -500), (750, 500)])  # lines 0-3
sketch6.addConstraint(Sketcher.Constraint("Vertical", 0))
sketch6.addConstraint(Sketcher.Constraint("Horizontal", 1))
sketch6.addConstraint(Sketcher.Constraint("Vertical", 2))
sketch6.addConstraint(Sketcher.Constraint("Horizontal", 3))
sketch6.addConstraint(Sketcher.Constraint("Symmetric", 0, 2, 2, 2, -1, 1))
sketch6.addConstraint(Sketcher.Constraint("DistanceX", 1, 1, 1, 2, Q("1500 mm")))
sketch6.addConstraint(Sketcher.Constraint("DistanceY", 0, 2, 0, 1, Q("1000 mm")))
pad6 = body4.newObject("PartDesign::Pad", "Pad005")
pad6.Profile = sketch6
pad6.Length = 35

# Sketch on XY plane
sketch7 = body4.newObject("Sketcher::SketchObject", "Sketch006")
sketch7.AttachmentSupport = (doc.getObject("XY_Plane003"), [""])
sketch7.MapMode = "FlatFace"
sketch7.AttachmentOffset = App.Placement(App.Vector(0, 0, 900), App.Rotation())
sketch7.addGeometry(Part.Circle(App.Vector(-660, 460, 0), App.Vector(0, 0, 1), 10), False)
sketch7.addGeometry(Part.Circle(App.Vector(-660, 340, 0), App.Vector(0, 0, 1), 10), False)
sketch7.addGeometry(Part.Circle(App.Vector(-540, 340, 0), App.Vector(0, 0, 1), 10), False)
sketch7.addGeometry(Part.Circle(App.Vector(-540, 460, 0), App.Vector(0, 0, 1), 10), False)
sketch7.addGeometry(Part.Circle(App.Vector(-660, -340, 0), App.Vector(0, 0, 1), 10), False)
sketch7.addGeometry(Part.Circle(App.Vector(-660, -460, 0), App.Vector(0, 0, 1), 10), False)
sketch7.addGeometry(Part.Circle(App.Vector(-540, -460, 0), App.Vector(0, 0, 1), 10), False)
sketch7.addGeometry(Part.Circle(App.Vector(-540, -340, 0), App.Vector(0, 0, 1), 10), False)
sketch7.addGeometry(Part.Circle(App.Vector(540, -460, 0), App.Vector(0, 0, 1), 10), False)
sketch7.addGeometry(Part.Circle(App.Vector(660, -460, 0), App.Vector(0, 0, 1), 10), False)
sketch7.addGeometry(Part.Circle(App.Vector(660, -340, 0), App.Vector(0, 0, 1), 10), False)
sketch7.addGeometry(Part.Circle(App.Vector(540, -340, 0), App.Vector(0, 0, 1), 10), False)
sketch7.addGeometry(Part.Circle(App.Vector(660, 340, 0), App.Vector(0, 0, 1), 10), False)
sketch7.addGeometry(Part.Circle(App.Vector(540, 340, 0), App.Vector(0, 0, 1), 10), False)
sketch7.addGeometry(Part.Circle(App.Vector(660, 460, 0), App.Vector(0, 0, 1), 10), False)
sketch7.addGeometry(Part.Circle(App.Vector(540, 460, 0), App.Vector(0, 0, 1), 10), False)
sketch7.addConstraint(Sketcher.Constraint("Equal", 0, 1))
sketch7.addConstraint(Sketcher.Constraint("Equal", 1, 2))
sketch7.addConstraint(Sketcher.Constraint("Equal", 2, 3))
sketch7.addConstraint(Sketcher.Constraint("Equal", 3, 4))
sketch7.addConstraint(Sketcher.Constraint("Equal", 4, 5))
sketch7.addConstraint(Sketcher.Constraint("Equal", 5, 6))
sketch7.addConstraint(Sketcher.Constraint("Equal", 6, 7))
sketch7.addConstraint(Sketcher.Constraint("Equal", 7, 8))
sketch7.addConstraint(Sketcher.Constraint("Equal", 8, 9))
sketch7.addConstraint(Sketcher.Constraint("Equal", 9, 10))
sketch7.addConstraint(Sketcher.Constraint("Equal", 10, 11))
sketch7.addConstraint(Sketcher.Constraint("Equal", 11, 12))
sketch7.addConstraint(Sketcher.Constraint("Equal", 12, 13))
sketch7.addConstraint(Sketcher.Constraint("Equal", 13, 14))
sketch7.addConstraint(Sketcher.Constraint("Equal", 14, 15))
sketch7.addConstraint(Sketcher.Constraint("Symmetric", 3, 3, 8, 3, -1, 1))
sketch7.addConstraint(Sketcher.Constraint("Symmetric", 0, 3, 9, 3, -1, 1))
sketch7.addConstraint(Sketcher.Constraint("Symmetric", 1, 3, 10, 3, -1, 1))
sketch7.addConstraint(Sketcher.Constraint("Symmetric", 2, 3, 11, 3, -1, 1))
sketch7.addConstraint(Sketcher.Constraint("Symmetric", 4, 3, 12, 3, -1, 1))
sketch7.addConstraint(Sketcher.Constraint("Symmetric", 7, 3, 13, 3, -1, 1))
sketch7.addConstraint(Sketcher.Constraint("Symmetric", 5, 3, 14, 3, -1, 1))
sketch7.addConstraint(Sketcher.Constraint("Symmetric", 6, 3, 15, 3, -1, 1))
sketch7.addConstraint(Sketcher.Constraint("Symmetric", 6, 3, 8, 3, -2))
sketch7.addConstraint(Sketcher.Constraint("Symmetric", 5, 3, 9, 3, -2))
sketch7.addConstraint(Sketcher.Constraint("Symmetric", 4, 3, 10, 3, -2))
sketch7.addConstraint(Sketcher.Constraint("Symmetric", 7, 3, 11, 3, -2))
sketch7.addConstraint(Sketcher.Constraint("Horizontal", 1, 3, 2, 3))
sketch7.addConstraint(Sketcher.Constraint("Horizontal", 0, 3, 3, 3))
sketch7.addConstraint(Sketcher.Constraint("Vertical", 0, 3, 1, 3))
sketch7.addConstraint(Sketcher.Constraint("Vertical", 2, 3, 3, 3))
sketch7.addConstraint(Sketcher.Constraint("Diameter", 0, Q("20 mm")))
sketch7.addConstraint(Sketcher.Constraint("DistanceX", 0, 3, -1, 1, Q("660 mm")))
sketch7.addConstraint(Sketcher.Constraint("DistanceY", -1, 1, 0, 3, Q("460 mm")))
sketch7.addConstraint(Sketcher.Constraint("DistanceY", -1, 1, 1, 3, Q("340 mm")))
sketch7.addConstraint(Sketcher.Constraint("DistanceX", 2, 3, -1, 1, Q("540 mm")))
pocket1 = body4.newObject("PartDesign::Pocket", "Pocket")
pocket1.Profile = sketch7
pocket1.Length = 20
pocket1.Reversed = True
doc.recompute()

fillet = body4.newObject("PartDesign::Fillet", "Fillet")
fillet.Base = (pocket1, edges_at(pocket1, [
    (750, 500, 917.5),
    (750, -500, 917.5),
    (-750, 500, 917.5),
    (-750, -500, 917.5),
]))
fillet.Radius = 50

# Sketch on XY plane
sketch8 = body4.newObject("Sketcher::SketchObject", "Sketch007")
sketch8.AttachmentSupport = (doc.getObject("XY_Plane003"), [""])
sketch8.MapMode = "FlatFace"
sketch8.AttachmentOffset = App.Placement(App.Vector(0, 0, 935), App.Rotation())
sketch8.addGeometry(Part.Circle(App.Vector(-288, 288, 0), App.Vector(0, 0, 1), 12), False)
sketch8.addGeometry(Part.Circle(App.Vector(-212, 288, 0), App.Vector(0, 0, 1), 12), False)
sketch8.addGeometry(Part.Circle(App.Vector(-288, 212, 0), App.Vector(0, 0, 1), 12), False)
sketch8.addGeometry(Part.Circle(App.Vector(-212, 212, 0), App.Vector(0, 0, 1), 12), False)
sketch8.addGeometry(Part.Circle(App.Vector(212, 288, 0), App.Vector(0, 0, 1), 12), False)
sketch8.addGeometry(Part.Circle(App.Vector(288, 288, 0), App.Vector(0, 0, 1), 12), False)
sketch8.addGeometry(Part.Circle(App.Vector(212, 212, 0), App.Vector(0, 0, 1), 12), False)
sketch8.addGeometry(Part.Circle(App.Vector(288, 212, 0), App.Vector(0, 0, 1), 12), False)
sketch8.addGeometry(Part.Circle(App.Vector(288, -288, 0), App.Vector(0, 0, 1), 12), False)
sketch8.addGeometry(Part.Circle(App.Vector(212, -288, 0), App.Vector(0, 0, 1), 12), False)
sketch8.addGeometry(Part.Circle(App.Vector(-212, -288, 0), App.Vector(0, 0, 1), 12), False)
sketch8.addGeometry(Part.Circle(App.Vector(-288, -288, 0), App.Vector(0, 0, 1), 12), False)
sketch8.addGeometry(Part.Circle(App.Vector(288, -212, 0), App.Vector(0, 0, 1), 12), False)
sketch8.addGeometry(Part.Circle(App.Vector(212, -212, 0), App.Vector(0, 0, 1), 12), False)
sketch8.addGeometry(Part.Circle(App.Vector(-212, -212, 0), App.Vector(0, 0, 1), 12), False)
sketch8.addGeometry(Part.Circle(App.Vector(-288, -212, 0), App.Vector(0, 0, 1), 12), False)
sketch8.addGeometry(Part.Circle(App.Vector(-648, 212, 0), App.Vector(0, 0, 1), 12), False)
sketch8.addGeometry(Part.Circle(App.Vector(-572, -212, 0), App.Vector(0, 0, 1), 12), False)
sketch8.addGeometry(Part.Circle(App.Vector(-572, -288, 0), App.Vector(0, 0, 1), 12), False)
sketch8.addGeometry(Part.Circle(App.Vector(-572, 288, 0), App.Vector(0, 0, 1), 12), False)
sketch8.addGeometry(Part.Circle(App.Vector(-648, 288, 0), App.Vector(0, 0, 1), 12), False)
sketch8.addGeometry(Part.Circle(App.Vector(-572, 212, 0), App.Vector(0, 0, 1), 12), False)
sketch8.addGeometry(Part.Circle(App.Vector(-648, -288, 0), App.Vector(0, 0, 1), 12), False)
sketch8.addGeometry(Part.Circle(App.Vector(-648, -212, 0), App.Vector(0, 0, 1), 12), False)
sketch8.addGeometry(Part.Circle(App.Vector(648, 288, 0), App.Vector(0, 0, 1), 12), False)
sketch8.addGeometry(Part.Circle(App.Vector(648, 212, 0), App.Vector(0, 0, 1), 12), False)
sketch8.addGeometry(Part.Circle(App.Vector(572, 288, 0), App.Vector(0, 0, 1), 12), False)
sketch8.addGeometry(Part.Circle(App.Vector(572, -212, 0), App.Vector(0, 0, 1), 12), False)
sketch8.addGeometry(Part.Circle(App.Vector(572, 212, 0), App.Vector(0, 0, 1), 12), False)
sketch8.addGeometry(Part.Circle(App.Vector(648, -288, 0), App.Vector(0, 0, 1), 12), False)
sketch8.addGeometry(Part.Circle(App.Vector(648, -212, 0), App.Vector(0, 0, 1), 12), False)
sketch8.addGeometry(Part.Circle(App.Vector(572, -288, 0), App.Vector(0, 0, 1), 12), False)
sketch8.addConstraint(Sketcher.Constraint("Equal", 0, 1))
sketch8.addConstraint(Sketcher.Constraint("Equal", 1, 2))
sketch8.addConstraint(Sketcher.Constraint("Equal", 2, 3))
sketch8.addConstraint(Sketcher.Constraint("Equal", 3, 4))
sketch8.addConstraint(Sketcher.Constraint("Equal", 4, 5))
sketch8.addConstraint(Sketcher.Constraint("Equal", 5, 6))
sketch8.addConstraint(Sketcher.Constraint("Equal", 6, 7))
sketch8.addConstraint(Sketcher.Constraint("Equal", 7, 8))
sketch8.addConstraint(Sketcher.Constraint("Equal", 8, 9))
sketch8.addConstraint(Sketcher.Constraint("Equal", 9, 10))
sketch8.addConstraint(Sketcher.Constraint("Equal", 10, 11))
sketch8.addConstraint(Sketcher.Constraint("Equal", 11, 12))
sketch8.addConstraint(Sketcher.Constraint("Equal", 12, 13))
sketch8.addConstraint(Sketcher.Constraint("Equal", 13, 14))
sketch8.addConstraint(Sketcher.Constraint("Equal", 14, 15))
sketch8.addConstraint(Sketcher.Constraint("Equal", 15, 16))
sketch8.addConstraint(Sketcher.Constraint("Equal", 16, 17))
sketch8.addConstraint(Sketcher.Constraint("Equal", 17, 18))
sketch8.addConstraint(Sketcher.Constraint("Equal", 18, 19))
sketch8.addConstraint(Sketcher.Constraint("Equal", 19, 20))
sketch8.addConstraint(Sketcher.Constraint("Equal", 20, 21))
sketch8.addConstraint(Sketcher.Constraint("Equal", 21, 22))
sketch8.addConstraint(Sketcher.Constraint("Equal", 22, 23))
sketch8.addConstraint(Sketcher.Constraint("Equal", 23, 24))
sketch8.addConstraint(Sketcher.Constraint("Equal", 24, 25))
sketch8.addConstraint(Sketcher.Constraint("Equal", 25, 26))
sketch8.addConstraint(Sketcher.Constraint("Equal", 26, 27))
sketch8.addConstraint(Sketcher.Constraint("Equal", 27, 28))
sketch8.addConstraint(Sketcher.Constraint("Equal", 28, 29))
sketch8.addConstraint(Sketcher.Constraint("Equal", 29, 30))
sketch8.addConstraint(Sketcher.Constraint("Equal", 30, 31))
sketch8.addConstraint(Sketcher.Constraint("Symmetric", 0, 3, 8, 3, -1, 1))
sketch8.addConstraint(Sketcher.Constraint("Symmetric", 1, 3, 9, 3, -1, 1))
sketch8.addConstraint(Sketcher.Constraint("Symmetric", 4, 3, 10, 3, -1, 1))
sketch8.addConstraint(Sketcher.Constraint("Symmetric", 5, 3, 11, 3, -1, 1))
sketch8.addConstraint(Sketcher.Constraint("Symmetric", 2, 3, 12, 3, -1, 1))
sketch8.addConstraint(Sketcher.Constraint("Symmetric", 3, 3, 13, 3, -1, 1))
sketch8.addConstraint(Sketcher.Constraint("Symmetric", 6, 3, 14, 3, -1, 1))
sketch8.addConstraint(Sketcher.Constraint("Symmetric", 7, 3, 15, 3, -1, 1))
sketch8.addConstraint(Sketcher.Constraint("Symmetric", 22, 3, 24, 3, -1, 1))
sketch8.addConstraint(Sketcher.Constraint("Symmetric", 23, 3, 25, 3, -1, 1))
sketch8.addConstraint(Sketcher.Constraint("Symmetric", 18, 3, 26, 3, -1, 1))
sketch8.addConstraint(Sketcher.Constraint("Symmetric", 21, 3, 27, 3, -1, 1))
sketch8.addConstraint(Sketcher.Constraint("Symmetric", 17, 3, 28, 3, -1, 1))
sketch8.addConstraint(Sketcher.Constraint("Symmetric", 20, 3, 29, 3, -1, 1))
sketch8.addConstraint(Sketcher.Constraint("Symmetric", 16, 3, 30, 3, -1, 1))
sketch8.addConstraint(Sketcher.Constraint("Symmetric", 19, 3, 31, 3, -1, 1))
sketch8.addConstraint(Sketcher.Constraint("Symmetric", 1, 3, 4, 3, -2))
sketch8.addConstraint(Sketcher.Constraint("Symmetric", 0, 3, 5, 3, -2))
sketch8.addConstraint(Sketcher.Constraint("Symmetric", 3, 3, 6, 3, -2))
sketch8.addConstraint(Sketcher.Constraint("Symmetric", 2, 3, 7, 3, -2))
sketch8.addConstraint(Sketcher.Constraint("Symmetric", 20, 3, 24, 3, -2))
sketch8.addConstraint(Sketcher.Constraint("Symmetric", 16, 3, 25, 3, -2))
sketch8.addConstraint(Sketcher.Constraint("Symmetric", 19, 3, 26, 3, -2))
sketch8.addConstraint(Sketcher.Constraint("Symmetric", 17, 3, 27, 3, -2))
sketch8.addConstraint(Sketcher.Constraint("Horizontal", 0, 3, 1, 3))
sketch8.addConstraint(Sketcher.Constraint("Horizontal", 2, 3, 3, 3))
sketch8.addConstraint(Sketcher.Constraint("Horizontal", 7, 3, 16, 3))
sketch8.addConstraint(Sketcher.Constraint("Horizontal", 15, 3, 17, 3))
sketch8.addConstraint(Sketcher.Constraint("Horizontal", 11, 3, 18, 3))
sketch8.addConstraint(Sketcher.Constraint("Horizontal", 19, 3, 20, 3))
sketch8.addConstraint(Sketcher.Constraint("Vertical", 0, 3, 2, 3))
sketch8.addConstraint(Sketcher.Constraint("Vertical", 1, 3, 3, 3))
sketch8.addConstraint(Sketcher.Constraint("Vertical", 17, 3, 18, 3))
sketch8.addConstraint(Sketcher.Constraint("Vertical", 16, 3, 20, 3))
sketch8.addConstraint(Sketcher.Constraint("Diameter", 0, Q("25 mm")))
sketch8.addConstraint(Sketcher.Constraint("DistanceX", 0, 3, 1, 3, Q("75 mm")))
sketch8.addConstraint(Sketcher.Constraint("DistanceY", 2, 3, 0, 3, Q("75 mm")))
sketch8.addConstraint(Sketcher.Constraint("DistanceX", 1, 3, 4, 3, Q("425 mm")))
sketch8.addConstraint(Sketcher.Constraint("DistanceY", 8, 3, 7, 3, Q("500 mm")))
sketch8.addConstraint(Sketcher.Constraint("DistanceX", 16, 3, 2, 3, Q("360 mm")))
sketch8.addConstraint(Sketcher.Constraint("DistanceX", 17, 3, 15, 3, Q("285 mm")))
pocket2 = body4.newObject("PartDesign::Pocket", "Pocket001")
pocket2.Profile = sketch8
pocket2.Type = "ThroughAll"
body5 = doc.addObject("PartDesign::Body", "Body004")

# Sketch on XY plane
sketch9 = body5.newObject("Sketcher::SketchObject", "Sketch008")
sketch9.AttachmentSupport = (doc.getObject("XY_Plane004"), [""])
sketch9.MapMode = "FlatFace"
sketch9.AttachmentOffset = App.Placement(App.Vector(0, 0, 935), App.Rotation())
add_polygon(sketch9, [(-1, 300), (-1, -500), (0, -500), (0, 300)])  # lines 0-3
sketch9.addConstraint(Sketcher.Constraint("Vertical", 0))
sketch9.addConstraint(Sketcher.Constraint("Horizontal", 1))
sketch9.addConstraint(Sketcher.Constraint("Vertical", 2))
sketch9.addConstraint(Sketcher.Constraint("Horizontal", 3))
sketch9.addConstraint(Sketcher.Constraint("PointOnObject", 1, 2, -2))
sketch9.addConstraint(Sketcher.Constraint("DistanceX", 1, 1, 1, 2, Q("1 mm")))
sketch9.addConstraint(Sketcher.Constraint("DistanceY", 0, 2, 0, 1, Q("800 mm")))
sketch9.addConstraint(Sketcher.Constraint("DistanceY", 0, 2, -1, 1, Q("500 mm")))
pad7 = body5.newObject("PartDesign::Pad", "Pad006")
pad7.Profile = sketch9
pad7.Length = 1000

doc.recompute()
